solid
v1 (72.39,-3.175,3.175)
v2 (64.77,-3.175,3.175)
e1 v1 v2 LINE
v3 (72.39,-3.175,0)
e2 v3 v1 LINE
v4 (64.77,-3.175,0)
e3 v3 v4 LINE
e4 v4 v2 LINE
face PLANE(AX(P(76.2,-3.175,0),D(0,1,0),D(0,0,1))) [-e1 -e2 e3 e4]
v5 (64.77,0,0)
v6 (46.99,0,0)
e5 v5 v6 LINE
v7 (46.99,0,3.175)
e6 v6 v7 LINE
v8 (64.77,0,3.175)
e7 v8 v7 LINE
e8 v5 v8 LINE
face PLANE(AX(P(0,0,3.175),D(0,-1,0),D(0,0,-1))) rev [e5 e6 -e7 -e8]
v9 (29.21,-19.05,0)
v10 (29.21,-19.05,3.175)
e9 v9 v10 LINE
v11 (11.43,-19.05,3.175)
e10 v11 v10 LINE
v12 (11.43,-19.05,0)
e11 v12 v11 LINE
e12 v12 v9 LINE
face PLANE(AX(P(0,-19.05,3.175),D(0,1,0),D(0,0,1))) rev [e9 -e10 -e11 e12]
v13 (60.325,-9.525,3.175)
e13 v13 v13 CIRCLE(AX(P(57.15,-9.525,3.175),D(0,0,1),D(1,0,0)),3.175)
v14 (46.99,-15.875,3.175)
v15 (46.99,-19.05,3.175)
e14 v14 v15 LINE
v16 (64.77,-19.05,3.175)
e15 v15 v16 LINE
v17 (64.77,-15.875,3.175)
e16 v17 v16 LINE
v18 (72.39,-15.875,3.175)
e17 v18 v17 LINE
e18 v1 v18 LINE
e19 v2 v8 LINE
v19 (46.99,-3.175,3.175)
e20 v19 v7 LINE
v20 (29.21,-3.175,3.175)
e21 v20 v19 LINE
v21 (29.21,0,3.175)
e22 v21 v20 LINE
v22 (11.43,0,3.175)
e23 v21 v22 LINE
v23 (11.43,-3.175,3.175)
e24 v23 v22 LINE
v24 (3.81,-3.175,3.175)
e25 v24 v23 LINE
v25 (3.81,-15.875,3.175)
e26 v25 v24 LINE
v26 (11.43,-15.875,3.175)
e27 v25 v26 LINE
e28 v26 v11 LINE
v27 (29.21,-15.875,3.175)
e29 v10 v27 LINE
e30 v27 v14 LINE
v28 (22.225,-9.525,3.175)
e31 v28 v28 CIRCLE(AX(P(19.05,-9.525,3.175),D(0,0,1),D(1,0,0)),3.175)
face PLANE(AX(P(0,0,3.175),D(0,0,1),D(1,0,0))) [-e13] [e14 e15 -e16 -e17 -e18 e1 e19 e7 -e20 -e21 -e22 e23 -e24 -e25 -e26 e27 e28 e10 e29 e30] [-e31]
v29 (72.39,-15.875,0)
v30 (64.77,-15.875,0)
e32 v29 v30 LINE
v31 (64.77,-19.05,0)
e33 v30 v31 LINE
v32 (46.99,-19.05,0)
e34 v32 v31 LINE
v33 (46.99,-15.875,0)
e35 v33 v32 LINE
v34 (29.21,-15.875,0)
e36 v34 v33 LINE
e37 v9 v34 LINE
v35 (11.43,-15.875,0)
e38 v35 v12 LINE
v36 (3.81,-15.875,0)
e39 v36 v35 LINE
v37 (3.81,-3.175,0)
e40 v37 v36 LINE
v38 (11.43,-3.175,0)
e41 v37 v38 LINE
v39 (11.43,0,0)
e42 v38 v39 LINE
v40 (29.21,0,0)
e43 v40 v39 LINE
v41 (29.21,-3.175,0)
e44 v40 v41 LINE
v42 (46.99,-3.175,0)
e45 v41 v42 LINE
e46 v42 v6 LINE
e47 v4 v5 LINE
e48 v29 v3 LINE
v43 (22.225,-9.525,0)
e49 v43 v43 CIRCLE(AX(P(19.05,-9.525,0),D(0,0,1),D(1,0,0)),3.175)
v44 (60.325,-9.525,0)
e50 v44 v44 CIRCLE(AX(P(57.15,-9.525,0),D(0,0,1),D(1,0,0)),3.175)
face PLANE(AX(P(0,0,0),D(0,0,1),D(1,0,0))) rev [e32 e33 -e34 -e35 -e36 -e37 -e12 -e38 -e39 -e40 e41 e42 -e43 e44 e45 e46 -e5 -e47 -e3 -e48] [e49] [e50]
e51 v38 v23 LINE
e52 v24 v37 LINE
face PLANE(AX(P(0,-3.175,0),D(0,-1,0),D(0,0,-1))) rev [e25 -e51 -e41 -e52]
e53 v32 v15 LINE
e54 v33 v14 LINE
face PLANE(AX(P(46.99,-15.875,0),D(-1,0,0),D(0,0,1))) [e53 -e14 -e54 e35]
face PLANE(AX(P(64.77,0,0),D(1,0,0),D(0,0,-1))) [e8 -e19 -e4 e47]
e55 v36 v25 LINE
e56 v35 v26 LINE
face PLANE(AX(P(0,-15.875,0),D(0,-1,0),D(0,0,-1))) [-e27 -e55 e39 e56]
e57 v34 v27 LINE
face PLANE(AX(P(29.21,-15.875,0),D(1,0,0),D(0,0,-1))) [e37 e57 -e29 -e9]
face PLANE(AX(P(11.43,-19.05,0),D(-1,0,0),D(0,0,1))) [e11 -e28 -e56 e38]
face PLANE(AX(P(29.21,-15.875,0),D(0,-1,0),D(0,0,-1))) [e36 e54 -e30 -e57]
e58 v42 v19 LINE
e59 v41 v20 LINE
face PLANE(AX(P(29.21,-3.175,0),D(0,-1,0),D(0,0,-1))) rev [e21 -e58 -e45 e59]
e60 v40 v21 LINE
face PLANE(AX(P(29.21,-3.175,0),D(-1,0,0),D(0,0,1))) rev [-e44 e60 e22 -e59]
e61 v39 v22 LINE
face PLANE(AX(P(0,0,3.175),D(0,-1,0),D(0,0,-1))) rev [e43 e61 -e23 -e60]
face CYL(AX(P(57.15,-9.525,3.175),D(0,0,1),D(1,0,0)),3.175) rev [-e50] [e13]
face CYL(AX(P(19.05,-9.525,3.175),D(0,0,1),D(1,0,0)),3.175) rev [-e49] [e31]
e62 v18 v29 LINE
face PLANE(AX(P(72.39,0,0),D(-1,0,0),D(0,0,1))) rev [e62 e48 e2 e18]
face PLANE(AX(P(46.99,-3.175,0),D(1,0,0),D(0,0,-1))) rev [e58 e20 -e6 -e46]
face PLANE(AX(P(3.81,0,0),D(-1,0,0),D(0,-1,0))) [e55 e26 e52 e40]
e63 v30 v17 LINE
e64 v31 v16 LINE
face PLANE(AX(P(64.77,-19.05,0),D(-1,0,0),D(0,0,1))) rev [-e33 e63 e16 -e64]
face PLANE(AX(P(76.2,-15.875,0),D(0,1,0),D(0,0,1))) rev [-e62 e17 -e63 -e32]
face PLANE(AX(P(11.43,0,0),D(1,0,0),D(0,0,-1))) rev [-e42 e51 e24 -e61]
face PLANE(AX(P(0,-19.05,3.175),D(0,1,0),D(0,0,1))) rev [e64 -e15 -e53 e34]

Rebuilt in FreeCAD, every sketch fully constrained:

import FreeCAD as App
import Part
import Sketcher
from FreeCAD import Vector
Q = App.Units.Quantity


def add_polygon(sketch, points):
    """Adds a closed chain of lines whose ends are joined by coincident constraints."""
    first, n = sketch.GeometryCount, len(points)
    for a, b in zip(points, points[1:] + points[:1]):
        sketch.addGeometry(Part.LineSegment(App.Vector(*a, 0), App.Vector(*b, 0)), False)
    for i in range(n):
        sketch.addConstraint(Sketcher.Constraint("Coincident", first + i, 2, first + (i + 1) % n, 1))

doc = App.newDocument("Part")
body = doc.addObject("PartDesign::Body", "Body")

sketch1 = doc.addObject("Sketcher::SketchObject", "Sketch")
body.addObject(sketch1)
sketch1.AttachmentSupport = (doc.XY_Plane, [""])
sketch1.MapMode = "FlatFace"
add_polygon(sketch1, [(0, 0), (0, -19), (76, -19), (76, 0)])
sketch1.addConstraint(Sketcher.Constraint("Vertical", 0))
sketch1.addConstraint(Sketcher.Constraint("Horizontal", 1))
sketch1.addConstraint(Sketcher.Constraint("Vertical", 2))
sketch1.addConstraint(Sketcher.Constraint("Horizontal", 3))
sketch1.addConstraint(Sketcher.Constraint("Coincident", 3, 2, -1, 1))
sketch1.addConstraint(Sketcher.Constraint("DistanceX", 1, 1, 1, 2, Q("3 in")))
sketch1.addConstraint(Sketcher.Constraint("DistanceY", 0, 2, 0, 1, Q("0.75 in")))
pad1 = doc.addObject("PartDesign::Pad", "Pad")
body.addObject(pad1)
pad1.Profile = sketch1
pad1.Length = Q("0.125 in")

sketch2 = doc.addObject("Sketcher::SketchObject", "Sketch001")
body.addObject(sketch2)
sketch2.AttachmentSupport = (doc.XY_Plane, [""])
sketch2.MapMode = "FlatFace"
sketch2.AttachmentOffset = App.Placement(Vector(0, 0, 0.125 * 25.4), App.Rotation())
add_polygon(sketch2, [(0, 0), (0, -3.2), (11.4, -3.2), (11.4, 0)])
sketch2.addConstraint(Sketcher.Constraint("Vertical", 0))
sketch2.addConstraint(Sketcher.Constraint("Horizontal", 1))
sketch2.addConstraint(Sketcher.Constraint("Vertical", 2))
sketch2.addConstraint(Sketcher.Constraint("Horizontal", 3))
sketch2.addConstraint(Sketcher.Constraint("Coincident", 3, 2, -1, 1))
sketch2.addConstraint(Sketcher.Constraint("DistanceX", 1, 1, 1, 2, Q("0.45 in")))
sketch2.addConstraint(Sketcher.Constraint("DistanceY", 0, 2, 0, 1, Q("0.125 in")))
pocket1 = doc.addObject("PartDesign::Pocket", "Pocket")
body.addObject(pocket1)
pocket1.Profile = sketch2
pocket1.Type = "ThroughAll"
doc.recompute()

datumplane = doc.addObject("PartDesign::Plane", "DatumPlane")
body.addObject(datumplane)
datumplane.AttachmentSupport = (doc.YZ_Plane, [""])
datumplane.MapMode = "FlatFace"
datumplane.AttachmentOffset = App.Placement(Vector(0, 0, 1.5 * 25.4), App.Rotation())
mirrored = doc.addObject("PartDesign::Mirrored", "Mirrored")
body.addObject(mirrored)
mirrored.Originals = [pocket1]
mirrored.MirrorPlane = (datumplane, [""])
body.Tip = mirrored

sketch3 = doc.addObject("Sketcher::SketchObject", "Sketch002")
body.addObject(sketch3)
sketch3.AttachmentSupport = (doc.XY_Plane, [""])
sketch3.MapMode = "FlatFace"
sketch3.AttachmentOffset = App.Placement(Vector(0, 0, 0.125 * 25.4), App.Rotation())
add_polygon(sketch3, [(29.2, 0), (29.2, -3.2), (47, -3.2), (47, 0)])
sketch3.addConstraint(Sketcher.Constraint("Vertical", 0))
sketch3.addConstraint(Sketcher.Constraint("Horizontal", 1))
sketch3.addConstraint(Sketcher.Constraint("Vertical", 2))
sketch3.addConstraint(Sketcher.Constraint("Horizontal", 3))
sketch3.addConstraint(Sketcher.Constraint("PointOnObject", 2, 2, -1))
sketch3.addConstraint(Sketcher.Constraint("DistanceX", 1, 1, 1, 2, Q("0.7 in")))
sketch3.addConstraint(Sketcher.Constraint("DistanceY", 0, 2, 0, 1, Q("0.125 in")))
sketch3.addConstraint(Sketcher.Constraint("DistanceX", -1, 1, 0, 2, Q("1.15 in")))
pocket2 = doc.addObject("PartDesign::Pocket", "Pocket001")
body.addObject(pocket2)
pocket2.Profile = sketch3
pocket2.Type = "ThroughAll"
doc.recompute()

datumplane2 = doc.addObject("PartDesign::Plane", "DatumPlane001")
body.addObject(datumplane2)
datumplane2.AttachmentSupport = (doc.XZ_Plane, [""])
datumplane2.MapMode = "FlatFace"
datumplane2.AttachmentOffset = App.Placement(Vector(0, 0, 0.375 * 25.4), App.Rotation())
mirrored2 = doc.addObject("PartDesign::Mirrored", "Mirrored001")
body.addObject(mirrored2)
mirrored2.Originals = [pocket1, pocket2]
mirrored2.MirrorPlane = (datumplane2, [""])
body.Tip = mirrored2

sketch4 = doc.addObject("Sketcher::SketchObject", "Sketch003")
body.addObject(sketch4)
sketch4.AttachmentSupport = (doc.XY_Plane, [""])
sketch4.MapMode = "FlatFace"
sketch4.AttachmentOffset = App.Placement(Vector(0, 0, 0.125 * 25.4), App.Rotation())
add_polygon(sketch4, [(76.2, -19.1), (76.2, -15.9), (64.8, -15.9), (64.8, -19.1)])
sketch4.addConstraint(Sketcher.Constraint("Vertical", 0))
sketch4.addConstraint(Sketcher.Constraint("Horizontal", 1))
sketch4.addConstraint(Sketcher.Constraint("Vertical", 2))
sketch4.addConstraint(Sketcher.Constraint("Horizontal", 3))
sketch4.addConstraint(Sketcher.Constraint("DistanceX", -1, 1, 0, 2, Q("3 in")))
sketch4.addConstraint(Sketcher.Constraint("DistanceX", 1, 2, 1, 1, Q("0.45 in")))
sketch4.addConstraint(Sketcher.Constraint("DistanceY", 0, 1, 0, 2, Q("0.125 in")))
sketch4.addConstraint(Sketcher.Constraint("DistanceY", 2, 2, -1, 1, Q("0.75 in")))
pocket3 = doc.addObject("PartDesign::Pocket", "Pocket002")
body.addObject(pocket3)
pocket3.Profile = sketch4
pocket3.Type = "ThroughAll"

sketch5 = doc.addObject("Sketcher::SketchObject", "Sketch004")
body.addObject(sketch5)
sketch5.AttachmentSupport = (doc.XY_Plane, [""])
sketch5.MapMode = "FlatFace"
sketch5.AttachmentOffset = App.Placement(Vector(0, 0, 0.125 * 25.4), App.Rotation())
sketch5.addGeometry(Part.Circle(Vector(19.1, -9.5, 0), Vector(0, 0, 1), 3.2), False)
sketch5.addGeometry(Part.Circle(Vector(57.1, -9.5, 0), Vector(0, 0, 1), 3.2), False)
sketch5.addConstraint(Sketcher.Constraint("Equal", 0, 1))
sketch5.addConstraint(Sketcher.Constraint("Horizontal", 0, 3, 1, 3))
sketch5.addConstraint(Sketcher.Constraint("Diameter", 0, Q("0.25 in")))
sketch5.addConstraint(Sketcher.Constraint("DistanceX", 0, 3, 1, 3, Q("1.5 in")))
sketch5.addConstraint(Sketcher.Constraint("DistanceX", -1, 1, 0, 3, Q("0.75 in")))
sketch5.addConstraint(Sketcher.Constraint("DistanceY", 0, 3, -1, 1, Q("0.375 in")))
doc.recompute()
hole = doc.addObject("PartDesign::Hole", "Hole")
body.addObject(hole)
hole.Profile = sketch5
hole.ThreadType = "None"
hole.Diameter = Q("0.25 in")
hole.DepthType = "ThroughAll"

sketch6 = doc.addObject("Sketcher::SketchObject", "Sketch005")
body.addObject(sketch6)
sketch6.AttachmentSupport = (doc.YZ_Plane, [""])
sketch6.MapMode = "FlatFace"
add_polygon(sketch6, [(-3.2, 0), (-15.9, 0), (-15.9, 3.2), (-3.2, 3.2)])
sketch6.addConstraint(Sketcher.Constraint("Horizontal", 0))
sketch6.addConstraint(Sketcher.Constraint("Vertical", 1))
sketch6.addConstraint(Sketcher.Constraint("Horizontal", 2))
sketch6.addConstraint(Sketcher.Constraint("Vertical", 3))
sketch6.addConstraint(Sketcher.Constraint("PointOnObject", 0, 2, -1))
sketch6.addConstraint(Sketcher.Constraint("DistanceX", 0, 2, 0, 1, Q("0.5 in")))
sketch6.addConstraint(Sketcher.Constraint("DistanceY", 1, 1, 1, 2, Q("0.125 in")))
sketch6.addConstraint(Sketcher.Constraint("DistanceX", 0, 2, -1, 1, Q("0.625 in")))
pocket4 = doc.addObject("PartDesign::Pocket", "Pocket003")
body.addObject(pocket4)
pocket4.Profile = sketch6
pocket4.Length = Q("0.15 in")
pocket4.Reversed = True

sketch7 = doc.addObject("Sketcher::SketchObject", "Sketch006")
body.addObject(sketch7)
sketch7.AttachmentSupport = (doc.YZ_Plane, [""])
sketch7.MapMode = "FlatFace"
sketch7.AttachmentOffset = App.Placement(Vector(0, 0, 3 * 25.4), App.Rotation())
add_polygon(sketch7, [(-3.2, 3.2), (-15.9, 3.2), (-15.9, 0), (-3.2, 0)])
sketch7.addConstraint(Sketcher.Constraint("Horizontal", 0))
sketch7.addConstraint(Sketcher.Constraint("Vertical", 1))
sketch7.addConstraint(Sketcher.Constraint("Horizontal", 2))
sketch7.addConstraint(Sketcher.Constraint("Vertical", 3))
sketch7.addConstraint(Sketcher.Constraint("PointOnObject", 1, 2, -1))
sketch7.addConstraint(Sketcher.Constraint("DistanceX", 0, 2, 0, 1, Q("0.5 in")))
sketch7.addConstraint(Sketcher.Constraint("DistanceY", 1, 2, 1, 1, Q("0.125 in")))
sketch7.addConstraint(Sketcher.Constraint("DistanceX", 0, 2, -1, 1, Q("0.625 in")))
pocket5 = doc.addObject("PartDesign::Pocket", "Pocket004")
body.addObject(pocket5)
pocket5.Profile = sketch7
pocket5.Length = Q("0.15 in")

doc.recompute()
